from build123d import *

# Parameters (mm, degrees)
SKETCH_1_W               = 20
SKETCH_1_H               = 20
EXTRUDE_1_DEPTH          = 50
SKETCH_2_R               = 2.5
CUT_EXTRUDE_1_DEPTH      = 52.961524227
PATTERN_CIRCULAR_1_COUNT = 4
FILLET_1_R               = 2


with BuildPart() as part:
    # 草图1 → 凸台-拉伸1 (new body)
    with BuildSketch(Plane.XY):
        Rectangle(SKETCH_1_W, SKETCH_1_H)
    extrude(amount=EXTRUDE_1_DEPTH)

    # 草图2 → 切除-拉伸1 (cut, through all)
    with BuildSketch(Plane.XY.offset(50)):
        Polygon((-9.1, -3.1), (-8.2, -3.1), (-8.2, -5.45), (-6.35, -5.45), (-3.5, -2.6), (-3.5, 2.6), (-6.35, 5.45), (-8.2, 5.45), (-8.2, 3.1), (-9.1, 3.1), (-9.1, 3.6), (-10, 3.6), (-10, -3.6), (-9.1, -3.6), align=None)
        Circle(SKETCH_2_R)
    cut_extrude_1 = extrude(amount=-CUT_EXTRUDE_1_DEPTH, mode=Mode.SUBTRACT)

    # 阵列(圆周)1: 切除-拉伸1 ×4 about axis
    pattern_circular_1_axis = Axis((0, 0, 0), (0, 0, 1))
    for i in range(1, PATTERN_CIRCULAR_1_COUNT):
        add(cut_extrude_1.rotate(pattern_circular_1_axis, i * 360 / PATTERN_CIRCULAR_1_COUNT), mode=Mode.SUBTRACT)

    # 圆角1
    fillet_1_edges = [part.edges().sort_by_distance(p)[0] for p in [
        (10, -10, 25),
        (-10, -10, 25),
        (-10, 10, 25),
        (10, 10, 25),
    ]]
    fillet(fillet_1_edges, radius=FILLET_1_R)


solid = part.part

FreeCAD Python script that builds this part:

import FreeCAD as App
import Part
import Sketcher

V = App.Vector
Q = App.Units.Quantity


def edges_at(feature, points):
    """Names of the edges that pass closest to the given points."""
    edges = feature.Shape.Edges
    near = lambda p: min(range(len(edges)), key=lambda i: edges[i].distToShape(Part.Vertex(*p))[0])
    return sorted({f"Edge{near(p) + 1}" for p in points})


def add_polygon(sketch, points):
    """Adds a closed chain of lines whose ends are joined by coincident constraints."""
    first, n = sketch.GeometryCount, len(points)
    for a, b in zip(points, points[1:] + points[:1]):
        sketch.addGeometry(Part.LineSegment(App.Vector(*a, 0), App.Vector(*b, 0)), False)
    for i in range(n):
        sketch.addConstraint(Sketcher.Constraint("Coincident", first + i, 2, first + (i + 1) % n, 1))

doc = App.newDocument("Part")
params = doc.addObject("Spreadsheet::Sheet", "Params")
for row, (alias, value) in enumerate([
    ("sketch1_width", "20 mm"),
    ("pad1_length", "50 mm"),
    ("sketch2_diameter", "5 mm"),
    ("sketch2_width", "0.9 mm"),
    ("sketch2_height", "5.2 mm"),
    ("sketch2_height2", "0.5 mm"),
    ("sketch2_height3", "7.2 mm"),
    ("fillet_radius", "2 mm"),
], start=1):
    params.set(f"A{row}", alias)
    params.set(f"B{row}", "=" + value)
    params.setAlias(f"B{row}", alias)

body = doc.addObject("PartDesign::Body", "Body")

sketch1 = doc.addObject("Sketcher::SketchObject", "Sketch")
body.addObject(sketch1)
sketch1.AttachmentSupport = (doc.XY_Plane, [""])
sketch1.MapMode = "FlatFace"
add_polygon(sketch1, [(-10, 10), (-10, -10), (10, -10), (10, 10)])
sketch1.addConstraint(Sketcher.Constraint("Vertical", 0))
sketch1.addConstraint(Sketcher.Constraint("Horizontal", 1))
sketch1.addConstraint(Sketcher.Constraint("Vertical", 2))
sketch1.addConstraint(Sketcher.Constraint("Horizontal", 3))
sketch1.addConstraint(Sketcher.Constraint("Symmetric", 0, 2, 2, 2, -1, 1))
sketch1.addConstraint(Sketcher.Constraint("Equal", 3, 0))
sketch1.addConstraint(Sketcher.Constraint("DistanceX", 1, 1, 1, 2, Q("20 mm")))
sketch1.setExpression("Constraints[10]", "Params.sketch1_width")
pad1 = doc.addObject("PartDesign::Pad", "Pad")
body.addObject(pad1)
pad1.Profile = sketch1
pad1.setExpression("Length", "Params.pad1_length")

sketch2 = doc.addObject("Sketcher::SketchObject", "Sketch001")
body.addObject(sketch2)
sketch2.AttachmentSupport = (doc.XY_Plane, [""])
sketch2.MapMode = "FlatFace"
sketch2.AttachmentOffset = App.Placement(V(0, 0, 50), App.Rotation())
add_polygon(sketch2, [(-9.1, -3.1), (-8.2, -3.1), (-8.2, -5.5), (-6.3, -5.5), (-3.5, -2.6), (-3.5, 2.6), (-6.3, 5.5), (-8.2, 5.5), (-8.2, 3.1), (-9.1, 3.1), (-9.1, 3.6), (-10, 3.6), (-10, -3.6), (-9.1, -3.6)])
sketch2.addGeometry(Part.Circle(V(0, 0, 0), V(0, 0, 1), 2.5), False)
sketch2.addConstraint(Sketcher.Constraint("Horizontal", 0))
sketch2.addConstraint(Sketcher.Constraint("Vertical", 1))
sketch2.addConstraint(Sketcher.Constraint("Horizontal", 2))
sketch2.addConstraint(Sketcher.Constraint("Vertical", 4))
sketch2.addConstraint(Sketcher.Constraint("Horizontal", 6))
sketch2.addConstraint(Sketcher.Constraint("Vertical", 7))
sketch2.addConstraint(Sketcher.Constraint("Horizontal", 8))
sketch2.addConstraint(Sketcher.Constraint("Vertical", 9))
sketch2.addConstraint(Sketcher.Constraint("Horizontal", 10))
sketch2.addConstraint(Sketcher.Constraint("Vertical", 11))
sketch2.addConstraint(Sketcher.Constraint("Horizontal", 12))
sketch2.addConstraint(Sketcher.Constraint("Vertical", 13))
sketch2.addConstraint(Sketcher.Constraint("Coincident", 14, 3, -1, 1))
sketch2.addConstraint(Sketcher.Constraint("Symmetric", 2, 2, 5, 2, -1))
sketch2.addConstraint(Sketcher.Constraint("Symmetric", 0, 2, 7, 2, -1))
sketch2.addConstraint(Sketcher.Constraint("Symmetric", 9, 2, 12, 2, -1))
sketch2.addConstraint(Sketcher.Constraint("Perpendicular", 3, 5))
sketch2.addConstraint(Sketcher.Constraint("Equal", 8, 10))
sketch2.addConstraint(Sketcher.Constraint("Equal", 3, 5))
sketch2.addConstraint(Sketcher.Constraint("Diameter", 14, Q("5 mm")))
sketch2.addConstraint(Sketcher.Constraint("DistanceX", 0, 1, 0, 2, Q("0.9 mm")))
sketch2.addConstraint(Sketcher.Constraint("DistanceY", 4, 1, 4, 2, Q("5.2 mm")))
sketch2.addConstraint(Sketcher.Constraint("DistanceY", 9, 1, 9, 2, Q("0.5 mm")))
sketch2.addConstraint(Sketcher.Constraint("DistanceY", 11, 2, 11, 1, Q("7.2 mm")))
sketch2.addConstraint(Sketcher.Constraint("DistanceX", 10, 2, -1, 1, Q("10 mm")))
sketch2.addConstraint(Sketcher.Constraint("DistanceX", 2, 1, 2, 2, Q("1.85 mm")))
sketch2.addConstraint(Sketcher.Constraint("DistanceY", 1, 2, 1, 1, Q("2.35 mm")))
sketch2.setExpression("Constraints[33]", "Params.sketch2_diameter")
sketch2.setExpression("Constraints[34]", "Params.sketch2_width")
sketch2.setExpression("Constraints[35]", "Params.sketch2_height")
sketch2.setExpression("Constraints[36]", "Params.sketch2_height2")
sketch2.setExpression("Constraints[37]", "Params.sketch2_height3")
pocket1 = doc.addObject("PartDesign::Pocket", "Pocket")
body.addObject(pocket1)
pocket1.Profile = sketch2
pocket1.Type = "ThroughAll"
doc.recompute()

polarpattern = doc.addObject("PartDesign::PolarPattern", "PolarPattern")
body.addObject(polarpattern)
polarpattern.Originals = [pocket1]
polarpattern.Axis = (doc.Z_Axis, [""])
polarpattern.Angle = 360
polarpattern.Occurrences = 4
body.Tip = polarpattern
doc.recompute()

fillet = doc.addObject("PartDesign::Fillet", "Fillet")
body.addObject(fillet)
fillet.Base = (polarpattern, edges_at(polarpattern, [
    (10, -10, 25),
    (-10, -10, 25),
    (-10, 10, 25),
    (10, 10, 25),
]))
fillet.setExpression("Radius", "Params.fillet_radius")

doc.recompute()
